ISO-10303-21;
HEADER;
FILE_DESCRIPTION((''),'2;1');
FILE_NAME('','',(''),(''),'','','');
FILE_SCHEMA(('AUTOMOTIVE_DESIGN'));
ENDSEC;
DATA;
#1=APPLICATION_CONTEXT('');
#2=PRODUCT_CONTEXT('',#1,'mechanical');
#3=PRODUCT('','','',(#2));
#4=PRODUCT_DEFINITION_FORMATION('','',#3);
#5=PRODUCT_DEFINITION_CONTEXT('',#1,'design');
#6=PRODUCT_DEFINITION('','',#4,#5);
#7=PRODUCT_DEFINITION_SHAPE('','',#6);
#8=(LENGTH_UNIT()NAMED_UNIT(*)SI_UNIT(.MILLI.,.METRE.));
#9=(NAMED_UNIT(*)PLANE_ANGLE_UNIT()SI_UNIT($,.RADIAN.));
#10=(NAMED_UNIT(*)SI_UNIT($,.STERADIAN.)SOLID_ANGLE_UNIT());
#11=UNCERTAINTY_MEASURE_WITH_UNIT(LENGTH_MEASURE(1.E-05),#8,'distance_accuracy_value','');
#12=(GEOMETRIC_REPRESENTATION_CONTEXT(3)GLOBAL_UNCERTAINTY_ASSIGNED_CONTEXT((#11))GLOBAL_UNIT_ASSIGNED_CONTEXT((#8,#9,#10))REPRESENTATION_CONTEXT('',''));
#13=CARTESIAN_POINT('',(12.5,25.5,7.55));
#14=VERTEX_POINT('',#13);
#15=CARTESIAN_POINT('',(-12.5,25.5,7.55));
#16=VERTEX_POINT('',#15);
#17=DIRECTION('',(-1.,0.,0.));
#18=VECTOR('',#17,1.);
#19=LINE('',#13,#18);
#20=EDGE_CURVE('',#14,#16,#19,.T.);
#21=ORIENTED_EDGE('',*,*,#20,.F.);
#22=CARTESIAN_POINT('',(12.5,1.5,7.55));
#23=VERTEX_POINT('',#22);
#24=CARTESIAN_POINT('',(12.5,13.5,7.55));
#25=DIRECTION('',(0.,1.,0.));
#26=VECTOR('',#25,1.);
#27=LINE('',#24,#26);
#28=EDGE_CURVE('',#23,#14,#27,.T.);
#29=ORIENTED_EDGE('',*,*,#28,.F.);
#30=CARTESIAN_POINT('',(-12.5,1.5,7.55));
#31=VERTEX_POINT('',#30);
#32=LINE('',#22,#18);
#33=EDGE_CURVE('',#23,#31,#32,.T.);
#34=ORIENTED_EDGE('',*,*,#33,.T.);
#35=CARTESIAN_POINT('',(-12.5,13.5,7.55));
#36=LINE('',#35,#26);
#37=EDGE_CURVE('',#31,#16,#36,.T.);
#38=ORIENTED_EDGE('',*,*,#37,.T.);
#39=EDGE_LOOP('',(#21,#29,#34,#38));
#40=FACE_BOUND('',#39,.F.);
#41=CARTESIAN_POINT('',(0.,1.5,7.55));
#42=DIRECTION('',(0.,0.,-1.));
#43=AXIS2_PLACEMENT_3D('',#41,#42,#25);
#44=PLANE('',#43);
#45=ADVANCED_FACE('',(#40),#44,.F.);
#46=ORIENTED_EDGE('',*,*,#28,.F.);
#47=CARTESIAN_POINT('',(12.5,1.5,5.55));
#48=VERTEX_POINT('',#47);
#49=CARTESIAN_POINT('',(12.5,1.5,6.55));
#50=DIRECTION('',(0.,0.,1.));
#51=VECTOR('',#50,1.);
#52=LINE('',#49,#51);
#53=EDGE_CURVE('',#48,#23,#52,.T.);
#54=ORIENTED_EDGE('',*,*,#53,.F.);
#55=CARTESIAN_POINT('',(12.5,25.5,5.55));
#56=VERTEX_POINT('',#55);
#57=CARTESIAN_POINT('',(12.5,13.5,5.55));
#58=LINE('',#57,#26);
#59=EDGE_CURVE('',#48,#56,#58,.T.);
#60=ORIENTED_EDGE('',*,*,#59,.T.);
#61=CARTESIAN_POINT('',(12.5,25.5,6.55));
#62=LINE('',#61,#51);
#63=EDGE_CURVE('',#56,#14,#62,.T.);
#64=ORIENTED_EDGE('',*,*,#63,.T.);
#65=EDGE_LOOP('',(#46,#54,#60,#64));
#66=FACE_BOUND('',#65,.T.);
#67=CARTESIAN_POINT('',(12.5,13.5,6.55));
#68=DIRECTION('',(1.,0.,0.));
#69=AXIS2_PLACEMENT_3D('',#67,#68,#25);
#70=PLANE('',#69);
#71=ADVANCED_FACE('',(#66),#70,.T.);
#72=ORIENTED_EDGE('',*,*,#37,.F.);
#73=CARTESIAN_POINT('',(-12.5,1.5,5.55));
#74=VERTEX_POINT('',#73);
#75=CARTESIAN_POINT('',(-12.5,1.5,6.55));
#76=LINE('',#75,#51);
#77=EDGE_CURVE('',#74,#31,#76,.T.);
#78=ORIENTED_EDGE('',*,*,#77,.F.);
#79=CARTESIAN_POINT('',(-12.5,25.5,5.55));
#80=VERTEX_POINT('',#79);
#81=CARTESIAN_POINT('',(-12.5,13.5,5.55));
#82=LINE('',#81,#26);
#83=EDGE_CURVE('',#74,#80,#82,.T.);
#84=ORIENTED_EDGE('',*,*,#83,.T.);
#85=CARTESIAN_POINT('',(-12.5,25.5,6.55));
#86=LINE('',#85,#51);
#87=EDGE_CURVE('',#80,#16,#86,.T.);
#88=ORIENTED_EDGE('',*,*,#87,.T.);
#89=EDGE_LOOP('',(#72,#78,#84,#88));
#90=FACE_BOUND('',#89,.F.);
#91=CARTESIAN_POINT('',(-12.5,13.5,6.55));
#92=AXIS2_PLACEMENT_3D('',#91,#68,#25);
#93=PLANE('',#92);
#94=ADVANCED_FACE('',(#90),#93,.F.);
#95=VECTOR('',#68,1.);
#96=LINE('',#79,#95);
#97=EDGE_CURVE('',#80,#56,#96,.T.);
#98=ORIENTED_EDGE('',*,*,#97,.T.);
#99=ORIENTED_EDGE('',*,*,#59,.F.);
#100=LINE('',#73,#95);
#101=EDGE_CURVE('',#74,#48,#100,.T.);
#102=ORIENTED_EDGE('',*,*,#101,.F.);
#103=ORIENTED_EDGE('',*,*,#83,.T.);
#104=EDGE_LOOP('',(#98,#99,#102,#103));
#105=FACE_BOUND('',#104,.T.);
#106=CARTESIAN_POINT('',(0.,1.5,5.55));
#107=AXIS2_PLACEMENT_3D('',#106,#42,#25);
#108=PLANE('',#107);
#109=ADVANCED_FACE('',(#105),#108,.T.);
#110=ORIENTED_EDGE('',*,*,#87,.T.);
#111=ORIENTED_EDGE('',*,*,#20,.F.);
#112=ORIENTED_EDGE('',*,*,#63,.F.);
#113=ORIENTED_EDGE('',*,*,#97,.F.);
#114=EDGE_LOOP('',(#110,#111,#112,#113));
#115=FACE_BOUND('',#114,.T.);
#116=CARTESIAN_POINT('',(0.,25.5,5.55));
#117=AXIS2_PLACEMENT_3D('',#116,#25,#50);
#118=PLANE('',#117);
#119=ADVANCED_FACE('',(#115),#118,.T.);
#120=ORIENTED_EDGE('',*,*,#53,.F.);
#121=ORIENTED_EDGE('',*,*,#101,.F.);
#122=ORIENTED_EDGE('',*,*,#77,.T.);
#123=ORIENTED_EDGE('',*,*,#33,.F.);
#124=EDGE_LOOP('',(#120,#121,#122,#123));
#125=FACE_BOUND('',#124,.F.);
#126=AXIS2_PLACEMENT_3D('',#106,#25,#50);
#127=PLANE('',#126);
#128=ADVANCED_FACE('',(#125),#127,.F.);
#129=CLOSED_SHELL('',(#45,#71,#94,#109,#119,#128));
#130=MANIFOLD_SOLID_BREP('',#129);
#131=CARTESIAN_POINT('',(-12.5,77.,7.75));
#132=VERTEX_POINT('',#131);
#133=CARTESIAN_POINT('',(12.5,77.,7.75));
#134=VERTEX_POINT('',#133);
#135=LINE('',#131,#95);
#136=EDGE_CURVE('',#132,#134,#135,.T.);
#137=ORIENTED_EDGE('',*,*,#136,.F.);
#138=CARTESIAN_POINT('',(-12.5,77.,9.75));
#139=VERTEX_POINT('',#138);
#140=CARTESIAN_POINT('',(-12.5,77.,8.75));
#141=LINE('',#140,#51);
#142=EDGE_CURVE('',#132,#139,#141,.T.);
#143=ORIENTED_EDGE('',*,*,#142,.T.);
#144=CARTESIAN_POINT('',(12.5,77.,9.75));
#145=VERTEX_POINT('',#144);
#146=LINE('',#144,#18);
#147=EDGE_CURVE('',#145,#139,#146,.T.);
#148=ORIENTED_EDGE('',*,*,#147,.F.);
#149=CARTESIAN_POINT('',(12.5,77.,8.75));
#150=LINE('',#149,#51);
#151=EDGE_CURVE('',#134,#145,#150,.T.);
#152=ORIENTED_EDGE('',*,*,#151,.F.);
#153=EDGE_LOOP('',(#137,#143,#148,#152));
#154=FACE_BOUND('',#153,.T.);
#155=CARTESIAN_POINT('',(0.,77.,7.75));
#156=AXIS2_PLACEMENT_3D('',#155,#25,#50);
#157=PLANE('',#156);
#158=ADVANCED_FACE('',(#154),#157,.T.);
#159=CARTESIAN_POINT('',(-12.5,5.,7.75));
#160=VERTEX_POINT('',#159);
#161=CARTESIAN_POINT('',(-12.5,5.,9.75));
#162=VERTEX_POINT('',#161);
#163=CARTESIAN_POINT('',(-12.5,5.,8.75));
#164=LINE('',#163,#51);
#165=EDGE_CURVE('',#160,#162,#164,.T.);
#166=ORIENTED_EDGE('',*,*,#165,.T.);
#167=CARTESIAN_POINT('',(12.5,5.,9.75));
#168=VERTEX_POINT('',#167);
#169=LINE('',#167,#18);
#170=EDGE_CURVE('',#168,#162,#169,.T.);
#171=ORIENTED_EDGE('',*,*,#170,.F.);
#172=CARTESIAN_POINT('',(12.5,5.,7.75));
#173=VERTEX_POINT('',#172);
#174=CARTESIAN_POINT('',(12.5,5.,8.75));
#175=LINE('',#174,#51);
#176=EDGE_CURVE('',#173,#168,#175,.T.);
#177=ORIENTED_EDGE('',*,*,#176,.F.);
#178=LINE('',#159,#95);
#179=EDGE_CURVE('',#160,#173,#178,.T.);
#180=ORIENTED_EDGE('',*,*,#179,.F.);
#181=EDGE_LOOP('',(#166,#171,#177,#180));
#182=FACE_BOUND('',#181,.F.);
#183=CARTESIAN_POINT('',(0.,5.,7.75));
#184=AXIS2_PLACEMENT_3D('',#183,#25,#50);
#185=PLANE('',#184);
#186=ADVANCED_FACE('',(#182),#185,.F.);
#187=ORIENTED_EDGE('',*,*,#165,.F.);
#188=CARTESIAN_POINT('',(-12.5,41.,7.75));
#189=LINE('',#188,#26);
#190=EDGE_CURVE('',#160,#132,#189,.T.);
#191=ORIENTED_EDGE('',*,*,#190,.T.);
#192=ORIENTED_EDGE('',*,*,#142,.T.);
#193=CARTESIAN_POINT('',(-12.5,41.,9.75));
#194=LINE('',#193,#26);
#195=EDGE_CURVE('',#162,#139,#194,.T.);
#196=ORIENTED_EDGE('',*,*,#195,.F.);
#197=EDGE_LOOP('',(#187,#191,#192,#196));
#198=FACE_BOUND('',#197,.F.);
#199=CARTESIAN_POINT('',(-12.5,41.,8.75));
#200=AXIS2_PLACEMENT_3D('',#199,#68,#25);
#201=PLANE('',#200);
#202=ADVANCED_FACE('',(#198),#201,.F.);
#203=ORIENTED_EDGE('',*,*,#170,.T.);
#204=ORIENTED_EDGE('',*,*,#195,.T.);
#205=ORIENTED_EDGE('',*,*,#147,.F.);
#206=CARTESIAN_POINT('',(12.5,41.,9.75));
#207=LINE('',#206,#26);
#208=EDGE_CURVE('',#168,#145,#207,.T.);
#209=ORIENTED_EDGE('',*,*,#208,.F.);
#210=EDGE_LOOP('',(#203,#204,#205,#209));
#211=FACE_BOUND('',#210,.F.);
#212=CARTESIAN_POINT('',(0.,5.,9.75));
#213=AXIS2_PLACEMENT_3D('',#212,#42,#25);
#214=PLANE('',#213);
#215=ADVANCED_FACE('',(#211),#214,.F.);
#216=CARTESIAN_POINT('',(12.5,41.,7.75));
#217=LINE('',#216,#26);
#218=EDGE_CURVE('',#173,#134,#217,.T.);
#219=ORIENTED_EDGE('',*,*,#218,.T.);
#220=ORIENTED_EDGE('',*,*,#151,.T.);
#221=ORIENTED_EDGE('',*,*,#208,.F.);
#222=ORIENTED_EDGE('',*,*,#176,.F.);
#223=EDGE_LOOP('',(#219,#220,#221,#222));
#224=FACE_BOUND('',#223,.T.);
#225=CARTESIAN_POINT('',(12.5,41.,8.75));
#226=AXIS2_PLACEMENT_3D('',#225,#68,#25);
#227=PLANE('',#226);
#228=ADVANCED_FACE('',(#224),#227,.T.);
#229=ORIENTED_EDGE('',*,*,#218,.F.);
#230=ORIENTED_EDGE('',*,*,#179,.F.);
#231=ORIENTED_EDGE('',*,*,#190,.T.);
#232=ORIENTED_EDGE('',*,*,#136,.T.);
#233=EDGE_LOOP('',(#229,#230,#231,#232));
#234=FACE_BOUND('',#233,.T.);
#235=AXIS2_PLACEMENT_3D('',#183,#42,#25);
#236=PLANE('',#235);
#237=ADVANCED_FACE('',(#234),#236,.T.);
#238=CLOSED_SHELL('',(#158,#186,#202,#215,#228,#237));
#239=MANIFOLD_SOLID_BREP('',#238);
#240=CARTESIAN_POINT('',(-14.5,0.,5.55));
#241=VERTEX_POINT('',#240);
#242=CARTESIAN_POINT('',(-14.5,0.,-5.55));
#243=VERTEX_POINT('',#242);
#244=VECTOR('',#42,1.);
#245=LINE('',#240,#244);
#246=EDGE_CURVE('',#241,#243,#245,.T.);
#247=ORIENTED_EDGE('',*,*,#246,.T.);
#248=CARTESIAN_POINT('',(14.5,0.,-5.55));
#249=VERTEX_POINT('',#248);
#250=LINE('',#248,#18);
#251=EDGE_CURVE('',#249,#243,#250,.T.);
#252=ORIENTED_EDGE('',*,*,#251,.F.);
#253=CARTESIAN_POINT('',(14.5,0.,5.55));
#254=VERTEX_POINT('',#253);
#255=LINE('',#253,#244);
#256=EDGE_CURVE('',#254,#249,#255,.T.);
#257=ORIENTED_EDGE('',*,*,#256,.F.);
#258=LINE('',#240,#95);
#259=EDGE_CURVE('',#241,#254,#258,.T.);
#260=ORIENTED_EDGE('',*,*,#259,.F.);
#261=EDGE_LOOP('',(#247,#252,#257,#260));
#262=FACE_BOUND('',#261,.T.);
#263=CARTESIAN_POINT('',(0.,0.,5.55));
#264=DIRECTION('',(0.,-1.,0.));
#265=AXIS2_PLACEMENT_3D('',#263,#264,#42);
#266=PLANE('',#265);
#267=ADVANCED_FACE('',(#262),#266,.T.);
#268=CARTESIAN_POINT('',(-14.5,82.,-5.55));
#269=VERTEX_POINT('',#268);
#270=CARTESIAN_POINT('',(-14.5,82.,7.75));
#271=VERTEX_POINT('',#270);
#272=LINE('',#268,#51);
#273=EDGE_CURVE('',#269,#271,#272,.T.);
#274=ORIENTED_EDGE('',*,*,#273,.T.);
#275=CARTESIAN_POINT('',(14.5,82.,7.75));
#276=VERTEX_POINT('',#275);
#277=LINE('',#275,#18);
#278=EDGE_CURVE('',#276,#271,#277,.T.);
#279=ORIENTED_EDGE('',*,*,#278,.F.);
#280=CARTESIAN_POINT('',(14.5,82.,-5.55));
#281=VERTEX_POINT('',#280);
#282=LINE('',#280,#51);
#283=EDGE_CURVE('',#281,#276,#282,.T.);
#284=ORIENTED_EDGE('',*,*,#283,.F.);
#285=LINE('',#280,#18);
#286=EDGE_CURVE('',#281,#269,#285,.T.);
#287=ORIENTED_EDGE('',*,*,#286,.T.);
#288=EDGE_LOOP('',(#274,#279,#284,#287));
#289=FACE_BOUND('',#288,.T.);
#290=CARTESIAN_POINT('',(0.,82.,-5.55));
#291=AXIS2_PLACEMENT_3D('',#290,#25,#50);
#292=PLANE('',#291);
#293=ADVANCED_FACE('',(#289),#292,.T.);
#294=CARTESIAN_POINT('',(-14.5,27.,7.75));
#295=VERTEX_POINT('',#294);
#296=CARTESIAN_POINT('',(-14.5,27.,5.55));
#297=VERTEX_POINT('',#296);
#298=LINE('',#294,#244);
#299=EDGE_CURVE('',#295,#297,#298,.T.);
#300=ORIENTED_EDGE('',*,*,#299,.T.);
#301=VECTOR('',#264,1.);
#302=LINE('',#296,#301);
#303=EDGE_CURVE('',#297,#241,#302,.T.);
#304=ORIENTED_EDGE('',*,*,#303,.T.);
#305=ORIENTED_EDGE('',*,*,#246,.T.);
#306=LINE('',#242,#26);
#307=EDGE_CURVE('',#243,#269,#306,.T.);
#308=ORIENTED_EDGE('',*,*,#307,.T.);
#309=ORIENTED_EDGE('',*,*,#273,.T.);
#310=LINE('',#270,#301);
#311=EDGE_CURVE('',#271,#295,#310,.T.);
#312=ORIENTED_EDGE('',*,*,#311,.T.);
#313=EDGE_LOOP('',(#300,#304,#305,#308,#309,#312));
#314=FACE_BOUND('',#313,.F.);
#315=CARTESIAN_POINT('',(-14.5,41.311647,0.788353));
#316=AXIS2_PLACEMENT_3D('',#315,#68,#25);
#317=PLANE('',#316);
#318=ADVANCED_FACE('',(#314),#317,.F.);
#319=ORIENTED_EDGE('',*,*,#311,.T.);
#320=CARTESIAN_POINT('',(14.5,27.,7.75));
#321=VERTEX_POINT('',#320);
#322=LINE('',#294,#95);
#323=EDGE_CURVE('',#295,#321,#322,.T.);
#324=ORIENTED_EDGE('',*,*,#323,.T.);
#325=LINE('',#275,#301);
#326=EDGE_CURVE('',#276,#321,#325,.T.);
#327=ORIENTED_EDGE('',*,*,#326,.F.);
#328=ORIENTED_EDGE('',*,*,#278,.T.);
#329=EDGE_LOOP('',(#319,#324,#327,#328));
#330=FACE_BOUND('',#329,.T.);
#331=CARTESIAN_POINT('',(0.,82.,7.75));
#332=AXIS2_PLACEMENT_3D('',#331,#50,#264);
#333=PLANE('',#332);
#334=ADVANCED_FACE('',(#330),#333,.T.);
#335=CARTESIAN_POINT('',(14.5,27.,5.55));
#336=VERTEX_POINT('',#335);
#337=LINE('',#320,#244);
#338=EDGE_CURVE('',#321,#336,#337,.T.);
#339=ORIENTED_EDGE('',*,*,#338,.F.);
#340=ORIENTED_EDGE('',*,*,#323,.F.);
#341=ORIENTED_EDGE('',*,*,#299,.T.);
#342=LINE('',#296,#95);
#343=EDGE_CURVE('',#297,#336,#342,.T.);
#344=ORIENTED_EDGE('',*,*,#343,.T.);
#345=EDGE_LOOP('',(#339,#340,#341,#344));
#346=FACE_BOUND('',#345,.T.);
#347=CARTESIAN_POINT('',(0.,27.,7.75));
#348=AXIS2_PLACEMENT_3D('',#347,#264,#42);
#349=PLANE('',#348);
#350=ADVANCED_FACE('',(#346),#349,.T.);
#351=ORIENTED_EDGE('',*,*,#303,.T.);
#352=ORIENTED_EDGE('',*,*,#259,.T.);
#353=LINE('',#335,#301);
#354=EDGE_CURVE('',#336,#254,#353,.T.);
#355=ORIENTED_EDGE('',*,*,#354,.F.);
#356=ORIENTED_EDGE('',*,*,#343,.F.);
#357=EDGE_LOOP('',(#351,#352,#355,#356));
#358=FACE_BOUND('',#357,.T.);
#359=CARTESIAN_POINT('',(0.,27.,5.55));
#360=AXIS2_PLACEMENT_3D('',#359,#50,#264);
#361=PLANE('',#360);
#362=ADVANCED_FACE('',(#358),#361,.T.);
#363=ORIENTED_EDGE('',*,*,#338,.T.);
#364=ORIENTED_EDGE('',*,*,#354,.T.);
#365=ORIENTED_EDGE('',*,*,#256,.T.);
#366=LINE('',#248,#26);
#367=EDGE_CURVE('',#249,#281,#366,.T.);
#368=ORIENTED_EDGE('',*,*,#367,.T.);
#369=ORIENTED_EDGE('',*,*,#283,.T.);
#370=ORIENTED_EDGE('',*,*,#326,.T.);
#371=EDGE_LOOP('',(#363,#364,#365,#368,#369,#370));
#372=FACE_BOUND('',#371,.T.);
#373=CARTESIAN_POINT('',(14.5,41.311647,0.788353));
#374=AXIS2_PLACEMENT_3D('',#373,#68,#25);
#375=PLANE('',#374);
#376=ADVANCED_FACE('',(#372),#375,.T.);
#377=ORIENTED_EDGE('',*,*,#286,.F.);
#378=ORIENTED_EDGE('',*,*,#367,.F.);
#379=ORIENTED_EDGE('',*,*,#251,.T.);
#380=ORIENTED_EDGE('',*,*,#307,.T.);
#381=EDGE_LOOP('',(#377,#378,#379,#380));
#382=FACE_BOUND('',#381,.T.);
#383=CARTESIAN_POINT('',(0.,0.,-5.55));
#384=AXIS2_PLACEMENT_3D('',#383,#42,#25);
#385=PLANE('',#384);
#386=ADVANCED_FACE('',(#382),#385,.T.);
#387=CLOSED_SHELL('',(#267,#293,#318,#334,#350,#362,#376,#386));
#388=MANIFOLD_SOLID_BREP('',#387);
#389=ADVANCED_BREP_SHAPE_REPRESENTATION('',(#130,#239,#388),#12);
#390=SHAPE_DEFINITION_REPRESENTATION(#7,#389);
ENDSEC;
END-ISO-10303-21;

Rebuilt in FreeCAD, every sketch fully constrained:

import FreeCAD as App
import Part
import Sketcher
from FreeCAD import Vector
Q = App.Units.Quantity

doc = App.newDocument("Part")
body = doc.addObject("PartDesign::Body", "Body")

sketch1 = doc.addObject("Sketcher::SketchObject", "Sketch")
body.addObject(sketch1)
sketch1.AttachmentSupport = (doc.YZ_Plane, [""])
sketch1.MapMode = "FlatFace"
sketch1.addGeometry([
    Part.LineSegment(Vector(82, 7.75, 0), Vector(27, 7.75, 0)),
    Part.LineSegment(Vector(27, 7.75, 0), Vector(27, 5.55, 0)),
    Part.LineSegment(Vector(27, 5.55, 0), Vector(0, 5.55, 0)),
    Part.LineSegment(Vector(0, 5.55, 0), Vector(0, -5.55, 0)),
    Part.LineSegment(Vector(0, -5.55, 0), Vector(82, -5.55, 0)),
    Part.LineSegment(Vector(82, -5.55, 0), Vector(82, 7.75, 0)),
], False)
sketch1.addConstraint([
    Sketcher.Constraint("Coincident", 0, 2, 1, 1),
    Sketcher.Constraint("Coincident", 1, 2, 2, 1),
    Sketcher.Constraint("Coincident", 2, 2, 3, 1),
    Sketcher.Constraint("Coincident", 3, 2, 4, 1),
    Sketcher.Constraint("Coincident", 4, 2, 5, 1),
    Sketcher.Constraint("Coincident", 5, 2, 0, 1),
    Sketcher.Constraint("Horizontal", 0),
    Sketcher.Constraint("Vertical", 1),
    Sketcher.Constraint("Horizontal", 2),
    Sketcher.Constraint("Vertical", 3),
    Sketcher.Constraint("Horizontal", 4),
    Sketcher.Constraint("Vertical", 5),
    Sketcher.Constraint("Symmetric", 2, 2, 3, 2, -1, 1),
    Sketcher.Constraint("DistanceX", 0, 2, 0, 1, Q("55 mm")),
    Sketcher.Constraint("DistanceX", 2, 2, 2, 1, Q("27 mm")),
    Sketcher.Constraint("DistanceY", 1, 2, 1, 1, Q("2.2 mm")),
    Sketcher.Constraint("DistanceY", 3, 2, 3, 1, Q("11.1 mm")),
])
pad1 = doc.addObject("PartDesign::Pad", "Pad")
body.addObject(pad1)
pad1.Profile = sketch1
pad1.Length = 29
pad1.Midplane = True
body2 = doc.addObject("PartDesign::Body", "Body001")

sketch2 = doc.addObject("Sketcher::SketchObject", "Sketch001")
body2.addObject(sketch2)
sketch2.AttachmentSupport = (doc.getObject("YZ_Plane001"), [""])
sketch2.MapMode = "FlatFace"
sketch2.addGeometry([
    Part.LineSegment(Vector(1.5, 7.55, 0), Vector(1.5, 5.55, 0)),
    Part.LineSegment(Vector(1.5, 5.55, 0), Vector(25.5, 5.55, 0)),
    Part.LineSegment(Vector(25.5, 5.55, 0), Vector(25.5, 7.55, 0)),
    Part.LineSegment(Vector(25.5, 7.55, 0), Vector(1.5, 7.55, 0)),
], False)
sketch2.addConstraint([
    Sketcher.Constraint("Coincident", 0, 2, 1, 1),
    Sketcher.Constraint("Coincident", 1, 2, 2, 1),
    Sketcher.Constraint("Coincident", 2, 2, 3, 1),
    Sketcher.Constraint("Coincident", 3, 2, 0, 1),
    Sketcher.Constraint("Vertical", 0),
    Sketcher.Constraint("Horizontal", 1),
    Sketcher.Constraint("Vertical", 2),
    Sketcher.Constraint("Horizontal", 3),
    Sketcher.Constraint("DistanceX", 1, 1, 1, 2, Q("24 mm")),
    Sketcher.Constraint("DistanceY", 0, 2, 0, 1, Q("2 mm")),
    Sketcher.Constraint("DistanceX", -1, 1, 0, 2, Q("1.5 mm")),
    Sketcher.Constraint("DistanceY", -1, 1, 0, 2, Q("5.55 mm")),
])
pad2 = doc.addObject("PartDesign::Pad", "Pad001")
body2.addObject(pad2)
pad2.Profile = sketch2
pad2.Length = 25
pad2.Midplane = True
body3 = doc.addObject("PartDesign::Body", "Body002")

sketch3 = doc.addObject("Sketcher::SketchObject", "Sketch002")
body3.addObject(sketch3)
sketch3.AttachmentSupport = (doc.getObject("YZ_Plane002"), [""])
sketch3.MapMode = "FlatFace"
sketch3.addGeometry([
    Part.LineSegment(Vector(5, 9.75, 0), Vector(5, 7.75, 0)),
    Part.LineSegment(Vector(5, 7.75, 0), Vector(77, 7.75, 0)),
    Part.LineSegment(Vector(77, 7.75, 0), Vector(77, 9.75, 0)),
    Part.LineSegment(Vector(77, 9.75, 0), Vector(5, 9.75, 0)),
], False)
sketch3.addConstraint([
    Sketcher.Constraint("Coincident", 0, 2, 1, 1),
    Sketcher.Constraint("Coincident", 1, 2, 2, 1),
    Sketcher.Constraint("Coincident", 2, 2, 3, 1),
    Sketcher.Constraint("Coincident", 3, 2, 0, 1),
    Sketcher.Constraint("Vertical", 0),
    Sketcher.Constraint("Horizontal", 1),
    Sketcher.Constraint("Vertical", 2),
    Sketcher.Constraint("Horizontal", 3),
    Sketcher.Constraint("DistanceX", 1, 1, 1, 2, Q("72 mm")),
    Sketcher.Constraint("DistanceY", 0, 2, 0, 1, Q("2 mm")),
    Sketcher.Constraint("DistanceX", -1, 1, 0, 2, Q("5 mm")),
    Sketcher.Constraint("DistanceY", -1, 1, 0, 2, Q("7.75 mm")),
])
pad3 = doc.addObject("PartDesign::Pad", "Pad002")
body3.addObject(pad3)
pad3.Profile = sketch3
pad3.Length = 25
pad3.Midplane = True

doc.recompute()
